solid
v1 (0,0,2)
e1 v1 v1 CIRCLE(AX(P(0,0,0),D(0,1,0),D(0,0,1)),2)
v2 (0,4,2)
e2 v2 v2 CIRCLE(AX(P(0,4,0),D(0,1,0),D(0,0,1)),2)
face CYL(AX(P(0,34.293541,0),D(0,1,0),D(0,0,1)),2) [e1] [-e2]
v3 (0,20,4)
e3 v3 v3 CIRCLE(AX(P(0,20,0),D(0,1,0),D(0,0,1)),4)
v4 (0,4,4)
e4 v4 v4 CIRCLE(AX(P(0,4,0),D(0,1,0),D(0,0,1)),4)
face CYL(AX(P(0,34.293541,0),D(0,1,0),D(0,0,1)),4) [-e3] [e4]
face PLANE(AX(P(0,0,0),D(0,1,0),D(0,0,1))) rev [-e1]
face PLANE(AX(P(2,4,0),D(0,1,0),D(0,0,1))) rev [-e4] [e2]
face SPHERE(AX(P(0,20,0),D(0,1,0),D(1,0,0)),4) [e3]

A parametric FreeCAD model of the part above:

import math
import FreeCAD as App
import Part
import Sketcher
from FreeCAD import Vector

doc = App.newDocument("Part")
body = doc.addObject("PartDesign::Body", "Body")

sketch1 = body.newObject("Sketcher::SketchObject", "Sketch")
sketch1.AttachmentSupport = (doc.getObject("XY_Plane"), [""])
sketch1.MapMode = "FlatFace"
sketch1.addGeometry([
    Part.LineSegment(Vector(0, 0, 0), Vector(2, 0, 0)),
    Part.LineSegment(Vector(2, 0, 0), Vector(2, 4, 0)),
    Part.LineSegment(Vector(2, 4, 0), Vector(4, 4, 0)),
    Part.LineSegment(Vector(4, 4, 0), Vector(4, 20, 0)),
    Part.ArcOfCircle(Part.Circle(Vector(0, 20, 0), Vector(0, 0, 1), 4), math.radians(0), math.radians(90)),
    Part.LineSegment(Vector(0, 24, 0), Vector(0, 0, 0)),
], False)
sketch1.addConstraint([
    Sketcher.Constraint("Coincident", 0, 2, 1, 1),
    Sketcher.Constraint("Coincident", 1, 2, 2, 1),
    Sketcher.Constraint("Coincident", 2, 2, 3, 1),
    Sketcher.Constraint("Tangent", 3, 2, 4, 1),
    Sketcher.Constraint("Coincident", 4, 2, 5, 1),
    Sketcher.Constraint("Coincident", 5, 2, 0, 1),
    Sketcher.Constraint("Horizontal", 0),
    Sketcher.Constraint("Vertical", 1),
    Sketcher.Constraint("Horizontal", 2),
    Sketcher.Constraint("Vertical", 3),
    Sketcher.Constraint("Vertical", 5),
    Sketcher.Constraint("Coincident", 5, 2, -1, 1),
    Sketcher.Constraint("PointOnObject", 4, 3, -2),
    Sketcher.Constraint("Equal", 0, 2),
    Sketcher.Constraint("Radius", 4, 4.0),
    Sketcher.Constraint("DistanceY", 1, 1, 1, 2, 4.0),
    Sketcher.Constraint("DistanceY", 3, 1, 3, 2, 16.0),
])
revolution = body.newObject("PartDesign::Revolution", "Revolution")
revolution.Profile = sketch1
revolution.ReferenceAxis = (sketch1, ["V_Axis"])
revolution.Angle = 360

doc.recompute()
